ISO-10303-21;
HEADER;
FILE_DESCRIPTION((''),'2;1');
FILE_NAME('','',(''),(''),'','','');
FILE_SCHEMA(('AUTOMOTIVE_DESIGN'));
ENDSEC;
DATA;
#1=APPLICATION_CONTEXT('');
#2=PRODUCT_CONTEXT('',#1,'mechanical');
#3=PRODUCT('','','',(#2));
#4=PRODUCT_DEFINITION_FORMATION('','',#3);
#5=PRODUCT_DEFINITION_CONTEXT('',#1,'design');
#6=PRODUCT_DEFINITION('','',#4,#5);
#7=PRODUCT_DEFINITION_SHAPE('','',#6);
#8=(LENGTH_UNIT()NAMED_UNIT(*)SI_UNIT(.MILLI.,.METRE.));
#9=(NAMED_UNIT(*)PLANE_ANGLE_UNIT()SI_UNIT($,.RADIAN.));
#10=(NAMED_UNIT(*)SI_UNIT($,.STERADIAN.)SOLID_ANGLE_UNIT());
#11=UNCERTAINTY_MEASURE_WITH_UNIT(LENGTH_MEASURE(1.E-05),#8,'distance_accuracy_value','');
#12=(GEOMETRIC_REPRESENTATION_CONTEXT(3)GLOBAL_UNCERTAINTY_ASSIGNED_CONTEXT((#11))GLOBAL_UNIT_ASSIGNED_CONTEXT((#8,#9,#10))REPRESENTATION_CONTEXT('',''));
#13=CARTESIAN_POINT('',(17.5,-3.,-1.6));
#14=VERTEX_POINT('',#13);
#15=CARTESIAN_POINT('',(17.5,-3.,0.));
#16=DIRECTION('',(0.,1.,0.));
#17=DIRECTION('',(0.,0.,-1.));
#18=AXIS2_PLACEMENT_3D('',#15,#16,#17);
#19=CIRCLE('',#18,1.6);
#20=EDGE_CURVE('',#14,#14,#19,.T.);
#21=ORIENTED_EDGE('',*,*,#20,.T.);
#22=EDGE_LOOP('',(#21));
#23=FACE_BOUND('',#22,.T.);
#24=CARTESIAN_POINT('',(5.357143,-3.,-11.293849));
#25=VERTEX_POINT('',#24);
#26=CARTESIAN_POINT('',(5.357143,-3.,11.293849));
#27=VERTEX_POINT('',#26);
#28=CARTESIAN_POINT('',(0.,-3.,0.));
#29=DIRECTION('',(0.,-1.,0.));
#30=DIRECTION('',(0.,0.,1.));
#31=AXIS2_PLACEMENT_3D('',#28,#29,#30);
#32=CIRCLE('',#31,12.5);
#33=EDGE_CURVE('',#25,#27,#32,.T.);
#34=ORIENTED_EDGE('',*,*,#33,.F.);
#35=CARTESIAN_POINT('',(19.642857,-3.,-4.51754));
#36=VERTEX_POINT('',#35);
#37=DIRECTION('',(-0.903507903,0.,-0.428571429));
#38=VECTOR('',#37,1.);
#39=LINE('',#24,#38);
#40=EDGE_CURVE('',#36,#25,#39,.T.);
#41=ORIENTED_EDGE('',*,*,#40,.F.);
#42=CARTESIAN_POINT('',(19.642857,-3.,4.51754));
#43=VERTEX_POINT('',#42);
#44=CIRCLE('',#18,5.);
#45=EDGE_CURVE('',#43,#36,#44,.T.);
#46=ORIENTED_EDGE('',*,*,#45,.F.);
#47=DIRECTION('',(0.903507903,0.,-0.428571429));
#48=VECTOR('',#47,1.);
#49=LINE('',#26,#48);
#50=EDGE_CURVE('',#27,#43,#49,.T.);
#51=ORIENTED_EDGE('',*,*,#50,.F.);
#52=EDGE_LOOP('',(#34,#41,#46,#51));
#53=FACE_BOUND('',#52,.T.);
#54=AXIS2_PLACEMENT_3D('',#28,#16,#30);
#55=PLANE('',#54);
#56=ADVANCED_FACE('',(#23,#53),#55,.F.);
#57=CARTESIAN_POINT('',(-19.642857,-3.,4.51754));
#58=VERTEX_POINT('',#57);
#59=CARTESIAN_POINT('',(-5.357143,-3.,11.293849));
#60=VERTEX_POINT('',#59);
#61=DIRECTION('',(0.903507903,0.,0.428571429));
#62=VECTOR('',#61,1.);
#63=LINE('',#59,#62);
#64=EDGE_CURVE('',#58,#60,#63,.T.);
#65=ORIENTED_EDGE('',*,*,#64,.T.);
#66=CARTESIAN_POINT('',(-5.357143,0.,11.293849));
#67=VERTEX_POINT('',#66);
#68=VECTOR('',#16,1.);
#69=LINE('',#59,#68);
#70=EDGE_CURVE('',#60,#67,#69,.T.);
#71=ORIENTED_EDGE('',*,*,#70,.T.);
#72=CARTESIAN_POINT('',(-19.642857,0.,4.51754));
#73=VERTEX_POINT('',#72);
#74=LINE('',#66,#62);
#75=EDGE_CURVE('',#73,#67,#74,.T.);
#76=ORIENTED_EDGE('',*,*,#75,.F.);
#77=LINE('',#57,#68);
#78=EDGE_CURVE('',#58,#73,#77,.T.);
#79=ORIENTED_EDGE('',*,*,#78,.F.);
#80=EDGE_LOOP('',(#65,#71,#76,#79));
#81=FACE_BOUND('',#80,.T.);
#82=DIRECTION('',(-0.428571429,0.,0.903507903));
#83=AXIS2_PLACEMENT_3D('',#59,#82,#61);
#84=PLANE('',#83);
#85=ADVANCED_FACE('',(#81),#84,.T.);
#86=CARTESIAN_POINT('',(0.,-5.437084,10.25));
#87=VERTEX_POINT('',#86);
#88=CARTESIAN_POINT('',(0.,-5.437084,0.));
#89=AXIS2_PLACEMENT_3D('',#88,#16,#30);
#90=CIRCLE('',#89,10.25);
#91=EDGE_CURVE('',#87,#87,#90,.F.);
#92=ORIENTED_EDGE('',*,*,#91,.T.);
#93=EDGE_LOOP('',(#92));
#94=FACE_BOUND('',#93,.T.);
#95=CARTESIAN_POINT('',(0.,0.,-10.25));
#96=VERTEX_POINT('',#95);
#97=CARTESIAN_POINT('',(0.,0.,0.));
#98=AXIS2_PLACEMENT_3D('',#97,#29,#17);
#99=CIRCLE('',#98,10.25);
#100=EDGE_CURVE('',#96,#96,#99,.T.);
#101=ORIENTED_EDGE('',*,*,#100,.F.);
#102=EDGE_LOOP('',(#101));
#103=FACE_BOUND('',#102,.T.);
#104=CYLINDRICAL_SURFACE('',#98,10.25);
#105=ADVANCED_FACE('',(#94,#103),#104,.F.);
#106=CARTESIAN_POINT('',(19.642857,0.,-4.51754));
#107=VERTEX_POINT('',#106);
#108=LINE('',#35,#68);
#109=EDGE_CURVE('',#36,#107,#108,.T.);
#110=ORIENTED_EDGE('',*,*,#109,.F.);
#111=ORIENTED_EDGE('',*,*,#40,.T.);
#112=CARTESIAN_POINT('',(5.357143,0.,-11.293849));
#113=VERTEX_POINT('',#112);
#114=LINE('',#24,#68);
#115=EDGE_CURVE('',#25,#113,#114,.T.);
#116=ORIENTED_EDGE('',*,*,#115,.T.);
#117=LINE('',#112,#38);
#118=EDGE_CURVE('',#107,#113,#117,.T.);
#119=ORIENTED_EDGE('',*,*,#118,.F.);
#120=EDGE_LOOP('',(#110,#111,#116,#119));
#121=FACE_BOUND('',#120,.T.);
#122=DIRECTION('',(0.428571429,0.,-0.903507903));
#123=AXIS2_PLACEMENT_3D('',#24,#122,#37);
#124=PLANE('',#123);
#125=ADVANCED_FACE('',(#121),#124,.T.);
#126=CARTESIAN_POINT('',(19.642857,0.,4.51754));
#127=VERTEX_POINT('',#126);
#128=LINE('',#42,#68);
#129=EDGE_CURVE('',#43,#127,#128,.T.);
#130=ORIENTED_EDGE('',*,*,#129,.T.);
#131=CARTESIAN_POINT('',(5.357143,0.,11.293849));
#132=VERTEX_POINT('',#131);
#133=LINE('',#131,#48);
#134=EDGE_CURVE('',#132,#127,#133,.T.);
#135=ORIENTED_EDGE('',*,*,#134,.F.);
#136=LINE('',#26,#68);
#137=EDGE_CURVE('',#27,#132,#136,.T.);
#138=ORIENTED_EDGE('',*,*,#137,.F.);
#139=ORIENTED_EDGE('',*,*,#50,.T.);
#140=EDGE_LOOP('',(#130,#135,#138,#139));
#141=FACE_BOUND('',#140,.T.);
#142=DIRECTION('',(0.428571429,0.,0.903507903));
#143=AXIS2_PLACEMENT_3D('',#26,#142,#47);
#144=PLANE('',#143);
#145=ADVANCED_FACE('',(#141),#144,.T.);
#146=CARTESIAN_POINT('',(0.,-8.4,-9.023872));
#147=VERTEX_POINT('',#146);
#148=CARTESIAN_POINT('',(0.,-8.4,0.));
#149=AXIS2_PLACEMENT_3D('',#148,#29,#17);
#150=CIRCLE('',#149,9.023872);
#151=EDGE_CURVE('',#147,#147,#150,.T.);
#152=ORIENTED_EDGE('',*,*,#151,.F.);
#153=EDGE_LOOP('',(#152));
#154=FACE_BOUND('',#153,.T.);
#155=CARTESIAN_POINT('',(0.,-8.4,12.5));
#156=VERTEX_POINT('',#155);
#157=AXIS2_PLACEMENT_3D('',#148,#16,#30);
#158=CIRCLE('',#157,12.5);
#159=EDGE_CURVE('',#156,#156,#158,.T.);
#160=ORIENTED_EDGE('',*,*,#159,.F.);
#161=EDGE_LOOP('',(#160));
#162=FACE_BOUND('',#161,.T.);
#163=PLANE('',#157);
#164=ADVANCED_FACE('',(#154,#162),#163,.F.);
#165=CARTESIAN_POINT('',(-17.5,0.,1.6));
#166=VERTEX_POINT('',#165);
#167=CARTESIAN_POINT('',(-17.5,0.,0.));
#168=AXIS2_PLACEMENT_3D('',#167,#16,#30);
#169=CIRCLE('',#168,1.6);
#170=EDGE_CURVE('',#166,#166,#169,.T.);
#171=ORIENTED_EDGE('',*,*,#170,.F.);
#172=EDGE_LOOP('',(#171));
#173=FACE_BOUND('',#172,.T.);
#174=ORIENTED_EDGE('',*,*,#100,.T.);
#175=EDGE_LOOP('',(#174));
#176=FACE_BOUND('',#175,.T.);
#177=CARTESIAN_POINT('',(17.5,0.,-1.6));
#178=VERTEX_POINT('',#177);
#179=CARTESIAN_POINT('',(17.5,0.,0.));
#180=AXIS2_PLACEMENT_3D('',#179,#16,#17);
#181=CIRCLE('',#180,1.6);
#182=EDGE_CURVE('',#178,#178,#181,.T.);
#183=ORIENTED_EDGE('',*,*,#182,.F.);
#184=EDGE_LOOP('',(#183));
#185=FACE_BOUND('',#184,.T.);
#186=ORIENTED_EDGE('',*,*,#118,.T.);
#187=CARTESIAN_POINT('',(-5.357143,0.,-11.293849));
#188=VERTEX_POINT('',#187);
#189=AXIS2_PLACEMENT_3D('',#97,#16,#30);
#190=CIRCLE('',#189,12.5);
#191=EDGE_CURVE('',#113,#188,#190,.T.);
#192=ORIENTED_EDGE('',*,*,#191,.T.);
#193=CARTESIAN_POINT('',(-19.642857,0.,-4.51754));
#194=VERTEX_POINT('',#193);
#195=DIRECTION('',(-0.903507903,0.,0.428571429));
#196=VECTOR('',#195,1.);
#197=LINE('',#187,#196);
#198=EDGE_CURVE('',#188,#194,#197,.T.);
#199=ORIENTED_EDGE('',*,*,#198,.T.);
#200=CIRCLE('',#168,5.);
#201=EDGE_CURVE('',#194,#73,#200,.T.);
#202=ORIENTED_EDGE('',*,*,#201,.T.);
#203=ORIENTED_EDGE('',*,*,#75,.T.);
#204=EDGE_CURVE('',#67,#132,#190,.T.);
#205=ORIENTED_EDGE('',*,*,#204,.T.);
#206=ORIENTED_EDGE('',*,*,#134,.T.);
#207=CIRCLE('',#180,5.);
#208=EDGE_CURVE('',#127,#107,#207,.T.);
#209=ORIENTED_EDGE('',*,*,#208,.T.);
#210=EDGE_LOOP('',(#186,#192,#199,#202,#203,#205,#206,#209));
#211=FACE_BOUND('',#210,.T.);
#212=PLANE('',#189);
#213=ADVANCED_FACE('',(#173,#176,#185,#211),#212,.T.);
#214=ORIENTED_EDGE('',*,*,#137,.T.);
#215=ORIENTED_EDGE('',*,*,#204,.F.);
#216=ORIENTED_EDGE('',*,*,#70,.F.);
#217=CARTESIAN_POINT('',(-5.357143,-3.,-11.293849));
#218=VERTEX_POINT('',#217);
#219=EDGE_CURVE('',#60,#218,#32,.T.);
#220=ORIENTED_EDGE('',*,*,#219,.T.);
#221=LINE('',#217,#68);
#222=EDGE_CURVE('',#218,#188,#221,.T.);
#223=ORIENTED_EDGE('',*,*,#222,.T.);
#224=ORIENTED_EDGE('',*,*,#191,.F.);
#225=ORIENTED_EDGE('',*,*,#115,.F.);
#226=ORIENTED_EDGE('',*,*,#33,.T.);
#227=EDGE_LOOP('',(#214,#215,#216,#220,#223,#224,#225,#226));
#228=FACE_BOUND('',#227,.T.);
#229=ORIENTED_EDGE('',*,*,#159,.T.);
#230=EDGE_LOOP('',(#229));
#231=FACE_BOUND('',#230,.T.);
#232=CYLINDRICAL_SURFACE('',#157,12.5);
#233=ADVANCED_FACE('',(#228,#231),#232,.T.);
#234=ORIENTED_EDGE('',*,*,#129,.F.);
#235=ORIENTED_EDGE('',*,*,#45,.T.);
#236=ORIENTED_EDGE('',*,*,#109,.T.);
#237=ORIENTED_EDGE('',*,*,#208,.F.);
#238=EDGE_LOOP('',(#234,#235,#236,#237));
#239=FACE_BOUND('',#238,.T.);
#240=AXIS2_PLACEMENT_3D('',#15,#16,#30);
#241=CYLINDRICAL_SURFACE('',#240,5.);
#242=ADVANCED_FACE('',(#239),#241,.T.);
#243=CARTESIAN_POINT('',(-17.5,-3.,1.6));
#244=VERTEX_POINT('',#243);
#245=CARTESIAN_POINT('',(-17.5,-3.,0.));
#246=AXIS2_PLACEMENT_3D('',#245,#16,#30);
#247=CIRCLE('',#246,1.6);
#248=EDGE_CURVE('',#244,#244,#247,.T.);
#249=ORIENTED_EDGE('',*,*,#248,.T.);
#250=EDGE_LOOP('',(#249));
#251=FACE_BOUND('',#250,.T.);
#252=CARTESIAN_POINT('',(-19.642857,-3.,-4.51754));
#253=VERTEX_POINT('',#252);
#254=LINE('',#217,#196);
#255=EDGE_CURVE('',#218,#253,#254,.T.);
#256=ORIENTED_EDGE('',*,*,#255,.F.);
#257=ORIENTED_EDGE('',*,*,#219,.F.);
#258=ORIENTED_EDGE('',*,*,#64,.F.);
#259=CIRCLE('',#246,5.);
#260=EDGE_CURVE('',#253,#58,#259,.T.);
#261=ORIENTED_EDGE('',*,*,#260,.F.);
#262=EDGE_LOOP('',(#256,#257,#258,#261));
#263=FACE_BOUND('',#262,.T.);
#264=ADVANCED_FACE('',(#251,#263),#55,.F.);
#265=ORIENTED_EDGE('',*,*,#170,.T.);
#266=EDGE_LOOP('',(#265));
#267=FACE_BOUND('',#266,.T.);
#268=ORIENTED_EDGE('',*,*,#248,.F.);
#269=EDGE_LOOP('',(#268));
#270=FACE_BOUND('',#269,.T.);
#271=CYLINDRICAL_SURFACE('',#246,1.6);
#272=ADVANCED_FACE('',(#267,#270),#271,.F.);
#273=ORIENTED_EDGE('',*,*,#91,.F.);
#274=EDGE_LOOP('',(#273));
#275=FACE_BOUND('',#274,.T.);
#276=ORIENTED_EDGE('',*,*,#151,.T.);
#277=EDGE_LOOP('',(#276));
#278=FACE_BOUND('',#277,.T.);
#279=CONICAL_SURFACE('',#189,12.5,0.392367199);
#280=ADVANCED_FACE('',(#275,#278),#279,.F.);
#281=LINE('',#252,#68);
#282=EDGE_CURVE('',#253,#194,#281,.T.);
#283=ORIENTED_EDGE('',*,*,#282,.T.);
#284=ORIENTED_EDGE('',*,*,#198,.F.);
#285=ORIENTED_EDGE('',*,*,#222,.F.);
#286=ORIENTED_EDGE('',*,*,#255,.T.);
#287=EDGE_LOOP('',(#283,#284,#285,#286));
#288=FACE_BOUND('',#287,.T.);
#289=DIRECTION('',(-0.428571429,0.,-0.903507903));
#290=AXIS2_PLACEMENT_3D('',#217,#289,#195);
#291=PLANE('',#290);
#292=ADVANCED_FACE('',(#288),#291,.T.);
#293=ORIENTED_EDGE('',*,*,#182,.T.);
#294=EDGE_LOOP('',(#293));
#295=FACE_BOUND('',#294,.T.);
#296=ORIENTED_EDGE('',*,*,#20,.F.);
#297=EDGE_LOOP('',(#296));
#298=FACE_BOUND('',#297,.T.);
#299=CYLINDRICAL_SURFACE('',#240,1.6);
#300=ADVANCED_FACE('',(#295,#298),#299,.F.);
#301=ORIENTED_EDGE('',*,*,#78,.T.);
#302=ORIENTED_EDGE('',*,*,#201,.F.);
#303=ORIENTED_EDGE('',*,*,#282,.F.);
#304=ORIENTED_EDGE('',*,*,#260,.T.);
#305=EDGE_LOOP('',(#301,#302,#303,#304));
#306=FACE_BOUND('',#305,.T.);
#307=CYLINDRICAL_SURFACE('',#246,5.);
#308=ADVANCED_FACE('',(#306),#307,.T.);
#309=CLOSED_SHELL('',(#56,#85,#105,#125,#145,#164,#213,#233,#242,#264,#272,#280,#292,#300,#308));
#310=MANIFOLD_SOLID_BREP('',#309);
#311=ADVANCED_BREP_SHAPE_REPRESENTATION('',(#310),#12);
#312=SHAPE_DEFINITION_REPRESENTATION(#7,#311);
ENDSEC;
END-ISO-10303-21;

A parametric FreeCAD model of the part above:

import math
import FreeCAD as App
import Part
import Sketcher
Q = App.Units.Quantity


def add_polygon(sketch, points):
    """Adds a closed chain of lines whose ends are joined by coincident constraints."""
    first, n = sketch.GeometryCount, len(points)
    for a, b in zip(points, points[1:] + points[:1]):
        sketch.addGeometry(Part.LineSegment(App.Vector(*a, 0), App.Vector(*b, 0)), False)
    for i in range(n):
        sketch.addConstraint(Sketcher.Constraint("Coincident", first + i, 2, first + (i + 1) % n, 1))

doc = App.newDocument("Part")
params = doc.addObject("Spreadsheet::Sheet", "Params")
for row, (alias, value) in enumerate([
    ("sketch1_diameter", "25 mm"),
    ("pad1_length", "8.4 mm"),
    ("sketch2_diameter", "20.5 mm"),
    ("sketch3_width", "8.4 mm"),
    ("revolution_angle", "360 deg"),
    ("sketch4_radius", "5 mm"),
    ("sketch4_diameter", "3.2 mm"),
    ("sketch4_radius2", "12.5 mm"),
    ("pad2_length", "3 mm"),
], start=1):
    params.set(f"A{row}", alias)
    params.set(f"B{row}", "=" + value)
    params.setAlias(f"B{row}", alias)

body = doc.addObject("PartDesign::Body", "Body")

# Sketch on XZ plane
sketch1 = body.newObject("Sketcher::SketchObject", "Sketch")
sketch1.AttachmentSupport = (doc.getObject("XZ_Plane"), [""])
sketch1.MapMode = "FlatFace"
sketch1.addGeometry(Part.Circle(App.Vector(0, 0, 0), App.Vector(0, 0, 1), 12), False)
sketch1.addConstraint([
    Sketcher.Constraint("Coincident", 0, 3, -1, 1),
    Sketcher.Constraint("Diameter", 0, Q("25 mm")),
])
sketch1.setExpression("Constraints[1]", "Params.sketch1_diameter")
pad1 = body.newObject("PartDesign::Pad", "Pad")
pad1.Profile = sketch1
pad1.setExpression("Length", "Params.pad1_length")

# Sketch on XZ plane
sketch2 = body.newObject("Sketcher::SketchObject", "Sketch001")
sketch2.AttachmentSupport = (doc.getObject("XZ_Plane"), [""])
sketch2.MapMode = "FlatFace"
sketch2.AttachmentOffset = App.Placement(App.Vector(0, 0, 8.4), App.Rotation())
sketch2.addGeometry(Part.Circle(App.Vector(0, 0, 0), App.Vector(0, 0, 1), 10), False)
sketch2.addConstraint([
    Sketcher.Constraint("Coincident", 0, 3, -1, 1),
    Sketcher.Constraint("Diameter", 0, Q("20.5 mm")),
])
sketch2.setExpression("Constraints[1]", "Params.sketch2_diameter")
pocket1 = body.newObject("PartDesign::Pocket", "Pocket")
pocket1.Profile = sketch2
pocket1.Type = "ThroughAll"
pocket1.Midplane = True

# Sketch on YZ plane
sketch3 = body.newObject("Sketcher::SketchObject", "Sketch002")
sketch3.AttachmentSupport = (doc.getObject("YZ_Plane"), [""])
sketch3.MapMode = "FlatFace"
add_polygon(sketch3, [(0, -12.5), (-8.4, -9), (-8.4, -12.5)])  # lines 0-2
sketch3.addConstraint([
    Sketcher.Constraint("Vertical", 1),
    Sketcher.Constraint("Horizontal", 2),
    Sketcher.Constraint("PointOnObject", 2, 2, -2),
    Sketcher.Constraint("DistanceX", 2, 1, 2, 2, Q("8.4 mm")),
    Sketcher.Constraint("DistanceY", 1, 2, -1, 1, Q("12.5 mm")),
    Sketcher.Constraint("DistanceY", 1, 2, 1, 1, Q("3.476128 mm")),
])
sketch3.setExpression("Constraints[6]", "Params.sketch3_width")
revolution = body.newObject("PartDesign::Revolution", "Revolution")
revolution.Profile = sketch3
revolution.ReferenceAxis = (sketch3, ["H_Axis"])
revolution.setExpression("Angle", "Params.revolution_angle")

# Sketch on XZ plane
sketch4 = body.newObject("Sketcher::SketchObject", "Sketch003")
sketch4.AttachmentSupport = (doc.getObject("XZ_Plane"), [""])
sketch4.MapMode = "FlatFace"
sketch4.addGeometry([
    Part.LineSegment(App.Vector(-5.4, -11.3, 0), App.Vector(-19.6, -4.5, 0)),  # 0
    Part.ArcOfCircle(Part.Circle(App.Vector(-17.5, 0, 0), App.Vector(0, 0, 1), 5), math.radians(115), math.radians(245)),  # 1
    Part.LineSegment(App.Vector(-19.6, 4.5, 0), App.Vector(-5.4, 11.3, 0)),  # 2
    Part.ArcOfCircle(Part.Circle(App.Vector(0, 0, 0), App.Vector(0, 0, 1), 12.5), math.radians(115), math.radians(245)),  # 3
    Part.Circle(App.Vector(-17.5, 0, 0), App.Vector(0, 0, 1), 1.6),  # 4
    Part.LineSegment(App.Vector(5.4, 11.3, 0), App.Vector(19.6, 4.5, 0)),  # 5
    Part.ArcOfCircle(Part.Circle(App.Vector(17.5, 0, 0), App.Vector(0, 0, 1), 5), math.radians(-65), math.radians(65)),  # 6
    Part.LineSegment(App.Vector(19.6, -4.5, 0), App.Vector(5.4, -11.3, 0)),  # 7
    Part.ArcOfCircle(Part.Circle(App.Vector(0, 0, 0), App.Vector(0, 0, 1), 12.5), math.radians(-65), math.radians(65)),  # 8
    Part.Circle(App.Vector(17.5, 0, 0), App.Vector(0, 0, 1), 1.6),  # 9
], False)
sketch4.addConstraint([
    Sketcher.Constraint("Tangent", 0, 2, 1, 2),
    Sketcher.Constraint("Tangent", 1, 1, 2, 1),
    Sketcher.Constraint("Tangent", 2, 2, 3, 1),
    Sketcher.Constraint("Tangent", 3, 2, 0, 1),
    Sketcher.Constraint("Tangent", 5, 2, 6, 2),
    Sketcher.Constraint("Tangent", 6, 1, 7, 1),
    Sketcher.Constraint("Tangent", 7, 2, 8, 1),
    Sketcher.Constraint("Tangent", 8, 2, 5, 1),
    Sketcher.Constraint("Coincident", 3, 3, -1, 1),
    Sketcher.Constraint("Coincident", 8, 3, -1, 1),
    Sketcher.Constraint("Coincident", 4, 3, 1, 3),
    Sketcher.Constraint("Coincident", 9, 3, 6, 3),
    Sketcher.Constraint("Equal", 1, 6),
    Sketcher.Constraint("Equal", 3, 8),
    Sketcher.Constraint("Equal", 4, 9),
    Sketcher.Constraint("Symmetric", 1, 3, 6, 3, -1, 1),
    Sketcher.Constraint("PointOnObject", 1, 3, -1),
    Sketcher.Constraint("Radius", 1, Q("5 mm")),
    Sketcher.Constraint("Diameter", 4, Q("3.2 mm")),
    Sketcher.Constraint("Radius", 3, Q("12.5 mm")),
    Sketcher.Constraint("DistanceX", 1, 3, 6, 3, Q("35 mm")),
])
sketch4.setExpression("Constraints[17]", "Params.sketch4_radius")
sketch4.setExpression("Constraints[18]", "Params.sketch4_diameter")
sketch4.setExpression("Constraints[19]", "Params.sketch4_radius2")
pad2 = body.newObject("PartDesign::Pad", "Pad001")
pad2.Profile = sketch4
pad2.setExpression("Length", "Params.pad2_length")

doc.recompute()
